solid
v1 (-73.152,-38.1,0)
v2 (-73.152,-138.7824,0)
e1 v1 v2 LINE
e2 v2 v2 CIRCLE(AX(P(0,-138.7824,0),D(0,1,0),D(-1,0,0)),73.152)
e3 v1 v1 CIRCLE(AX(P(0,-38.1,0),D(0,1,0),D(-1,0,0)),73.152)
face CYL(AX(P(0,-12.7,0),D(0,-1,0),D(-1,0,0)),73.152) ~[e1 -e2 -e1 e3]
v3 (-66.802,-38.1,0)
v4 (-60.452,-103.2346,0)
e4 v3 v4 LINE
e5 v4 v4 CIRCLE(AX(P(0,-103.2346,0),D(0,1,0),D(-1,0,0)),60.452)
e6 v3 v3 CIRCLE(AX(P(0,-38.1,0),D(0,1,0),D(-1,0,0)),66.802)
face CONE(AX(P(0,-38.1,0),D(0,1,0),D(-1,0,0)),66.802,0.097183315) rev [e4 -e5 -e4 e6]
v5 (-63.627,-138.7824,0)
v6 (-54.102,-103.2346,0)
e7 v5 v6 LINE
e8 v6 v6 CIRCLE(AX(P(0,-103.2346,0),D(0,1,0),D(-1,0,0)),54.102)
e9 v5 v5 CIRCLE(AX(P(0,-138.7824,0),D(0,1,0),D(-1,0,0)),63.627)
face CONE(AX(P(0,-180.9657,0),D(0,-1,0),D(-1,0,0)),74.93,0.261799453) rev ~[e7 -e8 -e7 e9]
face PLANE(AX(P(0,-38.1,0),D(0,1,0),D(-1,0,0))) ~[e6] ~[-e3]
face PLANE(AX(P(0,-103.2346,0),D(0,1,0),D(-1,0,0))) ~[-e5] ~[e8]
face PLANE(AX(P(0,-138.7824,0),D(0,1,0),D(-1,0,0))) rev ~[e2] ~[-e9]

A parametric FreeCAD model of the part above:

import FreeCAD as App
import Part
import Sketcher
Q = App.Units.Quantity


def add_polygon(sketch, points):
    """Adds a closed chain of lines whose ends are joined by coincident constraints."""
    first, n = sketch.GeometryCount, len(points)
    for a, b in zip(points, points[1:] + points[:1]):
        sketch.addGeometry(Part.LineSegment(App.Vector(*a, 0), App.Vector(*b, 0)), False)
    for i in range(n):
        sketch.addConstraint(Sketcher.Constraint("Coincident", first + i, 2, first + (i + 1) % n, 1))

doc = App.newDocument("Part")
body = doc.addObject("PartDesign::Body", "Body")

# Sketch on XY plane
sketch1 = body.newObject("Sketcher::SketchObject", "Sketch")
sketch1.AttachmentSupport = (doc.getObject("XY_Plane"), [""])
sketch1.MapMode = "FlatFace"
add_polygon(sketch1, [(-67, -38), (-73, -38), (-73, -139), (-64, -139), (-54, -103), (-60, -103)])  # lines 0-5
sketch1.addConstraint([
    Sketcher.Constraint("Horizontal", 0),
    Sketcher.Constraint("Vertical", 1),
    Sketcher.Constraint("Horizontal", 2),
    Sketcher.Constraint("Horizontal", 4),
    Sketcher.Constraint("Equal", 0, 4),
    Sketcher.Constraint("DistanceX", 0, 2, 0, 1, Q("0.25 in")),
    Sketcher.Constraint("DistanceX", 1, 2, 4, 2, Q("0.5 in")),
    Sketcher.Constraint("DistanceX", 2, 1, 2, 2, Q("0.375 in")),
    Sketcher.Constraint("Angle", 3, Q("75 deg")),
    Sketcher.Constraint("DistanceY", 0, 2, -1, 1, Q("1.5 in")),
    Sketcher.Constraint("DistanceX", 0, 2, -1, 1, Q("2.88 in")),
    Sketcher.Constraint("Distance", 5, Q("2.5765 in")),
])
revolution = body.newObject("PartDesign::Revolution", "Revolution")
revolution.Profile = sketch1
revolution.ReferenceAxis = (sketch1, ["V_Axis"])
revolution.Angle = 360

doc.recompute()
